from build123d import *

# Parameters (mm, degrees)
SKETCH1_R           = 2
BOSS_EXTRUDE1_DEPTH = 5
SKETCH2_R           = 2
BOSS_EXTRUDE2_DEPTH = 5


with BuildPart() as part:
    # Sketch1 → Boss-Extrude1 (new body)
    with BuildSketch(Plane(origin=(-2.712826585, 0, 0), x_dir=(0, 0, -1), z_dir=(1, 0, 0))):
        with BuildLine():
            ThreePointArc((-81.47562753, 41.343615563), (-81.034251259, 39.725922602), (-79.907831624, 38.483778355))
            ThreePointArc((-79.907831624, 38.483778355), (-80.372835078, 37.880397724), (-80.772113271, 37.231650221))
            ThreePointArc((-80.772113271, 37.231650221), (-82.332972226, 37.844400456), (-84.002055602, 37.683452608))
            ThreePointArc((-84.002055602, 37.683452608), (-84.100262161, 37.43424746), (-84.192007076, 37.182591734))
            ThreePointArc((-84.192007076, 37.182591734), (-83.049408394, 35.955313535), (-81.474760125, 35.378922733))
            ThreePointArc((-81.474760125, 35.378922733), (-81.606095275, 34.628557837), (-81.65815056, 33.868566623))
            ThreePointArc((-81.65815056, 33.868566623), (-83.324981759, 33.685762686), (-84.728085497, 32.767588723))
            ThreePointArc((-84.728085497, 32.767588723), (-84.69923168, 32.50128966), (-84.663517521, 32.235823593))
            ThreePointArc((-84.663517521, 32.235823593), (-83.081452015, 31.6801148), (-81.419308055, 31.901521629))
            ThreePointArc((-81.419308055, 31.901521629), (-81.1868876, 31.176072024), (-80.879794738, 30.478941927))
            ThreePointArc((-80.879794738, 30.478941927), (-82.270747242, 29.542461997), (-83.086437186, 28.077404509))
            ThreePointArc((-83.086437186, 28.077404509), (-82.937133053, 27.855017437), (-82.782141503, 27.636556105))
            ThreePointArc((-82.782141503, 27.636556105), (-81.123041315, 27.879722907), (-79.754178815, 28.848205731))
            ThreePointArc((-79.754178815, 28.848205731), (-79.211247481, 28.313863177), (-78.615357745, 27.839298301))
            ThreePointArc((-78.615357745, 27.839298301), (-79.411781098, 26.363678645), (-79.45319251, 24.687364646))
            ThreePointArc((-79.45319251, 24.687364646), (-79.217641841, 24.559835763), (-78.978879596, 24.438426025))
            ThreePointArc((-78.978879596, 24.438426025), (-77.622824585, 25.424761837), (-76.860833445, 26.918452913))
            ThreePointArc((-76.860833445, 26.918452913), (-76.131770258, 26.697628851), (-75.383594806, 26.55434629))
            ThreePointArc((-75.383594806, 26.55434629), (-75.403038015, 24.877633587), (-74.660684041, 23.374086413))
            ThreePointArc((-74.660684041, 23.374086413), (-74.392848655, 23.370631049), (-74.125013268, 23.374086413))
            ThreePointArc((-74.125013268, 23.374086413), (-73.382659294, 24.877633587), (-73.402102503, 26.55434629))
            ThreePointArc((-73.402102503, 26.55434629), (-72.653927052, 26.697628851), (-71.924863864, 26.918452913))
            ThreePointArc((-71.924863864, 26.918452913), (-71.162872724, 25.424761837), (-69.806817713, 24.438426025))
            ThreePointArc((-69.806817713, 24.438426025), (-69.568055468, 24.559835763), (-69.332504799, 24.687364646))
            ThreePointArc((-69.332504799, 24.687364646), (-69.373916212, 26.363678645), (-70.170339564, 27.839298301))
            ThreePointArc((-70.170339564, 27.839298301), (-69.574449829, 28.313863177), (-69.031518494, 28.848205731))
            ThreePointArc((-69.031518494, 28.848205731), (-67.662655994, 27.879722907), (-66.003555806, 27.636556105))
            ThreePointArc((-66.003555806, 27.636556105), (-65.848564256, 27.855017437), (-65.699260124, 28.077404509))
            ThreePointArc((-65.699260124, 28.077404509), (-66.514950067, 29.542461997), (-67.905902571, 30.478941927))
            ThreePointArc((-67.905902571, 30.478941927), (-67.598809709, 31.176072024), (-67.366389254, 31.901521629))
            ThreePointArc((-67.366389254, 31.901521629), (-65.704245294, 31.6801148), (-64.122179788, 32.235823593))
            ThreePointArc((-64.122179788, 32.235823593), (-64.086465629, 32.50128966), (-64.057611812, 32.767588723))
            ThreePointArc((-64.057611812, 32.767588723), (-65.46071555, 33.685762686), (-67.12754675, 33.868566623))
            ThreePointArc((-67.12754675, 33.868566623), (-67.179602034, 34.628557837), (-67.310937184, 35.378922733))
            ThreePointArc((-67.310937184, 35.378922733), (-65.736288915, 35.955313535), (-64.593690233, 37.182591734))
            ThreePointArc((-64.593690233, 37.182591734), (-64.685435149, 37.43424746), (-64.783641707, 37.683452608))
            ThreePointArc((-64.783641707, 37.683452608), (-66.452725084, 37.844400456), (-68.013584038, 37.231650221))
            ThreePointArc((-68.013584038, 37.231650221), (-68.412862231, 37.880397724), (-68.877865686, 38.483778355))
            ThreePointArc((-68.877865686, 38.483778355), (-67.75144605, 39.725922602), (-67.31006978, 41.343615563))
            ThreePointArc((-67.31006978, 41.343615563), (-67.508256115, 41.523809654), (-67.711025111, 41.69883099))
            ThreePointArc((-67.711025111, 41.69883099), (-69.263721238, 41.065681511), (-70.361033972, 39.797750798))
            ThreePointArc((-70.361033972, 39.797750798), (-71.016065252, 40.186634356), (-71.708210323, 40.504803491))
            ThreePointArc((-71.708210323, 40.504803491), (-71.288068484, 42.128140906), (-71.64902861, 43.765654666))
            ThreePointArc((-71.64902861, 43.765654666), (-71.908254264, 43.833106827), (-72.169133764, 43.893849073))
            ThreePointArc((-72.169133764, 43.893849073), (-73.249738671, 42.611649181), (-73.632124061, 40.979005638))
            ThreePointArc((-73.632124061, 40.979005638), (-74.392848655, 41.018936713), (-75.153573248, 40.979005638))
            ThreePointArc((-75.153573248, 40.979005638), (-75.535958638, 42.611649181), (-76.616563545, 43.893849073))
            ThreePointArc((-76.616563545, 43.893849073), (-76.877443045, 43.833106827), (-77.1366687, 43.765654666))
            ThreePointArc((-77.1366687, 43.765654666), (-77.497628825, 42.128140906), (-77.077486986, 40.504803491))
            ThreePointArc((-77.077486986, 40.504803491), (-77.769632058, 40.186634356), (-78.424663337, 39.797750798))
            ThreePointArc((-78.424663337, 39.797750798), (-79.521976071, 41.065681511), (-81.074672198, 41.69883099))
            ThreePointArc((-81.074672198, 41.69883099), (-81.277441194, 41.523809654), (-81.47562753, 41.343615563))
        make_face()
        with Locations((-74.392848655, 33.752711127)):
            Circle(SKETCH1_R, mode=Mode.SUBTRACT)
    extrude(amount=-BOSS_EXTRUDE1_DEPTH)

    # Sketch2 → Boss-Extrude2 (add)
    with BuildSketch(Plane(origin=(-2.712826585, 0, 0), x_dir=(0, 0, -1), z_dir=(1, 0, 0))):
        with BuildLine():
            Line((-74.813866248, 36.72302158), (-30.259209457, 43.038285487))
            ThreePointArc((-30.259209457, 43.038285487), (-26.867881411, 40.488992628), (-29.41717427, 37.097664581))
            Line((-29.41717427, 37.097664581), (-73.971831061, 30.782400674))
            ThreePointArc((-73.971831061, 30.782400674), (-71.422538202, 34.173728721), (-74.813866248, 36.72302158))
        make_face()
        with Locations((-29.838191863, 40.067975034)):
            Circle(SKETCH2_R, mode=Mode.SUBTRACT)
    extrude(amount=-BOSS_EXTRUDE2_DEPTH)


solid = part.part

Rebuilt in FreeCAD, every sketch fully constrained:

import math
import FreeCAD as App
import Part
import Sketcher

V = App.Vector
Q = App.Units.Quantity

doc = App.newDocument("Part")
body = doc.addObject("PartDesign::Body", "Body")

# Sketch on YZ plane
sketch1 = body.newObject("Sketcher::SketchObject", "Sketch")
sketch1.AttachmentSupport = (doc.getObject("YZ_Plane"), [""])
sketch1.MapMode = "FlatFace"
sketch1.AttachmentOffset = App.Placement(V(0, 0, -2.712827), App.Rotation())
sketch1.addGeometry([
    Part.ArcOfCircle(Part.Circle(V(41.456072, 77.878264, 0), V(0, 0, 1), 3.599121), math.radians(91.790521), math.radians(145.673607)),  # 0
    Part.ArcOfCircle(Part.Circle(V(33.752711, 74.392849, 0), V(0, 0, 1), 7.266226), math.radians(49.375123), math.radians(61.394108)),  # 1
    Part.ArcOfCircle(Part.Circle(V(34.279982, 82.831561, 0), V(0, 0, 1), 3.599121), math.radians(-34.904376), math.radians(18.97871)),  # 2
    Part.ArcOfCircle(Part.Circle(V(33.752712, 74.39285, 0), V(0, 0, 1), 10.382079), math.radians(67.752497), math.radians(70.709042)),  # 3
    Part.ArcOfCircle(Part.Circle(V(38.953945, 81.058961, 0), V(0, 0, 1), 3.599121), math.radians(119.482829), math.radians(173.365914)),  # 4
    Part.ArcOfCircle(Part.Circle(V(33.752711, 74.392849, 0), V(0, 0, 1), 7.266226), math.radians(77.067431), math.radians(89.086415)),  # 5
    Part.ArcOfCircle(Part.Circle(V(30.297921, 82.109992, 0), V(0, 0, 1), 3.599121), math.radians(-7.212068), math.radians(46.671017)),  # 6
    Part.ArcOfCircle(Part.Circle(V(33.752711, 74.39285, 0), V(0, 0, 1), 10.382079), math.radians(95.444805), math.radians(98.401349)),  # 7
    Part.ArcOfCircle(Part.Circle(V(35.260278, 82.712531, 0), V(0, 0, 1), 3.599121), math.radians(147.175136), math.radians(201.058222)),  # 8
    Part.ArcOfCircle(Part.Circle(V(33.752711, 74.392849, 0), V(0, 0, 1), 7.266226), math.radians(104.759739), math.radians(116.778723)),  # 9
    Part.ArcOfCircle(Part.Circle(V(27.107311, 79.620519, 0), V(0, 0, 1), 3.599121), math.radians(20.480239), math.radians(74.363325)),  # 10
    Part.ArcOfCircle(Part.Circle(V(33.752712, 74.392847, 0), V(0, 0, 1), 10.382082), math.radians(123.137113), math.radians(126.093657)),  # 11
    Part.ArcOfCircle(Part.Circle(V(31.221246, 82.460163, 0), V(0, 0, 1), 3.599121), math.radians(174.867444), math.radians(228.75053)),  # 12
    Part.ArcOfCircle(Part.Circle(V(33.752711, 74.392849, 0), V(0, 0, 1), 7.266226), math.radians(132.452046), math.radians(144.471031)),  # 13
    Part.ArcOfCircle(Part.Circle(V(25.439082, 75.933449, 0), V(0, 0, 1), 3.599121), math.radians(48.172547), math.radians(102.055633)),  # 14
    Part.ArcOfCircle(Part.Circle(V(33.752712, 74.392848, 0), V(0, 0, 1), 10.382081), math.radians(150.82942), math.radians(153.785964)),  # 15
    Part.ArcOfCircle(Part.Circle(V(27.762142, 80.359671, 0), V(0, 0, 1), 3.599121), math.radians(-157.440248), math.radians(-103.557163)),  # 16
    Part.ArcOfCircle(Part.Circle(V(33.752711, 74.392849, 0), V(0, 0, 1), 7.266226), math.radians(160.144354), math.radians(172.163338)),  # 17
    Part.ArcOfCircle(Part.Circle(V(25.675405, 71.893446, 0), V(0, 0, 1), 3.599121), math.radians(75.864855), math.radians(129.74794)),  # 18
    Part.ArcOfCircle(Part.Circle(V(33.752711, 74.392849, 0), V(0, 0, 1), 10.38208), math.radians(178.521728), math.radians(181.478272)),  # 19
    Part.ArcOfCircle(Part.Circle(V(25.675405, 76.892251, 0), V(0, 0, 1), 3.599121), math.radians(-129.74794), math.radians(-75.864855)),  # 20
    Part.ArcOfCircle(Part.Circle(V(33.752711, 74.392849, 0), V(0, 0, 1), 7.266226), math.radians(-172.163338), math.radians(-160.144354)),  # 21
    Part.ArcOfCircle(Part.Circle(V(27.762142, 68.426027, 0), V(0, 0, 1), 3.599121), math.radians(103.557163), math.radians(157.440248)),  # 22
    Part.ArcOfCircle(Part.Circle(V(33.752712, 74.392849, 0), V(0, 0, 1), 10.382081), math.radians(-153.785964), math.radians(-150.82942)),  # 23
    Part.ArcOfCircle(Part.Circle(V(25.439082, 72.852248, 0), V(0, 0, 1), 3.599121), math.radians(-102.055633), math.radians(-48.172547)),  # 24
    Part.ArcOfCircle(Part.Circle(V(33.752711, 74.392849, 0), V(0, 0, 1), 7.266226), math.radians(-144.471031), math.radians(-132.452046)),  # 25
    Part.ArcOfCircle(Part.Circle(V(31.221246, 66.325534, 0), V(0, 0, 1), 3.599121), math.radians(131.24947), math.radians(185.132556)),  # 26
    Part.ArcOfCircle(Part.Circle(V(33.752712, 74.392849, 0), V(0, 0, 1), 10.382081), math.radians(-126.093657), math.radians(-123.137113)),  # 27
    Part.ArcOfCircle(Part.Circle(V(27.107311, 69.165179, 0), V(0, 0, 1), 3.599121), math.radians(-74.363325), math.radians(-20.480239)),  # 28
    Part.ArcOfCircle(Part.Circle(V(33.752711, 74.392849, 0), V(0, 0, 1), 7.266226), math.radians(-116.778723), math.radians(-104.759739)),  # 29
    Part.ArcOfCircle(Part.Circle(V(35.260278, 66.073166, 0), V(0, 0, 1), 3.599121), math.radians(158.941778), math.radians(212.824864)),  # 30
    Part.ArcOfCircle(Part.Circle(V(33.752711, 74.392848, 0), V(0, 0, 1), 10.382079), math.radians(-98.401349), math.radians(-95.444805)),  # 31
    Part.ArcOfCircle(Part.Circle(V(30.297921, 66.675705, 0), V(0, 0, 1), 3.599121), math.radians(-46.671017), math.radians(7.212068)),  # 32
    Part.ArcOfCircle(Part.Circle(V(33.752711, 74.392849, 0), V(0, 0, 1), 7.266226), math.radians(-89.086415), math.radians(-77.067431)),  # 33
    Part.ArcOfCircle(Part.Circle(V(38.953945, 67.726737, 0), V(0, 0, 1), 3.599121), math.radians(-173.365914), math.radians(-119.482829)),  # 34
    Part.ArcOfCircle(Part.Circle(V(33.752711, 74.39285, 0), V(0, 0, 1), 10.382082), math.radians(-70.709041), math.radians(-67.752497)),  # 35
    Part.ArcOfCircle(Part.Circle(V(34.279982, 65.954136, 0), V(0, 0, 1), 3.599121), math.radians(-18.97871), math.radians(34.904376)),  # 36
    Part.ArcOfCircle(Part.Circle(V(33.752711, 74.392849, 0), V(0, 0, 1), 7.266226), math.radians(-61.394108), math.radians(-49.375123)),  # 37
    Part.ArcOfCircle(Part.Circle(V(41.456072, 70.907434, 0), V(0, 0, 1), 3.599121), math.radians(-145.673607), math.radians(-91.790521)),  # 38
    Part.ArcOfCircle(Part.Circle(V(33.752712, 74.392848, 0), V(0, 0, 1), 10.382079), math.radians(-43.016734), math.radians(-40.060189)),  # 39
    Part.ArcOfCircle(Part.Circle(V(38.141251, 67.165775, 0), V(0, 0, 1), 3.599121), math.radians(8.713598), math.radians(62.596684)),  # 40
    Part.ArcOfCircle(Part.Circle(V(33.752711, 74.392849, 0), V(0, 0, 1), 7.266226), math.radians(-33.7018), math.radians(-21.682815)),  # 41
    Part.ArcOfCircle(Part.Circle(V(42.193451, 74.886597, 0), V(0, 0, 1), 3.599121), math.radians(-117.981299), math.radians(-64.098213)),  # 42
    Part.ArcOfCircle(Part.Circle(V(33.752711, 74.392849, 0), V(0, 0, 1), 10.38208), math.radians(-15.324426), math.radians(-12.367882)),  # 43
    Part.ArcOfCircle(Part.Circle(V(40.997159, 70.033049, 0), V(0, 0, 1), 3.599121), math.radians(36.405906), math.radians(90.288991)),  # 44
    Part.ArcOfCircle(Part.Circle(V(33.752711, 74.392849, 0), V(0, 0, 1), 7.266226), math.radians(-6.009492), math.radians(6.009492)),  # 45
    Part.ArcOfCircle(Part.Circle(V(40.997159, 78.752649, 0), V(0, 0, 1), 3.599121), math.radians(-90.288991), math.radians(-36.405906)),  # 46
    Part.ArcOfCircle(Part.Circle(V(33.752711, 74.392849, 0), V(0, 0, 1), 10.38208), math.radians(12.367882), math.radians(15.324426)),  # 47
    Part.ArcOfCircle(Part.Circle(V(42.193451, 73.8991, 0), V(0, 0, 1), 3.599121), math.radians(64.098213), math.radians(117.981299)),  # 48
    Part.ArcOfCircle(Part.Circle(V(33.752711, 74.392849, 0), V(0, 0, 1), 7.266225), math.radians(21.682815), math.radians(33.7018)),  # 49
    Part.ArcOfCircle(Part.Circle(V(38.141251, 81.619923, 0), V(0, 0, 1), 3.599121), math.radians(-62.596684), math.radians(-8.713598)),  # 50
    Part.ArcOfCircle(Part.Circle(V(33.752711, 74.392849, 0), V(0, 0, 1), 10.38208), math.radians(40.060189), math.radians(43.016734)),  # 51
    Part.Circle(V(33.752711, 74.392849, 0), V(0, 0, 1), 2),  # 52
], False)
sketch1.addConstraint([
    Sketcher.Constraint("Coincident", 0, 2, 1, 1),
    Sketcher.Constraint("Coincident", 1, 2, 2, 1),
    Sketcher.Constraint("Coincident", 2, 2, 3, 1),
    Sketcher.Constraint("Coincident", 3, 2, 4, 1),
    Sketcher.Constraint("Coincident", 4, 2, 5, 1),
    Sketcher.Constraint("Coincident", 5, 2, 6, 1),
    Sketcher.Constraint("Coincident", 6, 2, 7, 1),
    Sketcher.Constraint("Coincident", 7, 2, 8, 1),
    Sketcher.Constraint("Coincident", 8, 2, 9, 1),
    Sketcher.Constraint("Coincident", 9, 2, 10, 1),
    Sketcher.Constraint("Coincident", 10, 2, 11, 1),
    Sketcher.Constraint("Coincident", 11, 2, 12, 1),
    Sketcher.Constraint("Coincident", 12, 2, 13, 1),
    Sketcher.Constraint("Coincident", 13, 2, 14, 1),
    Sketcher.Constraint("Coincident", 14, 2, 15, 1),
    Sketcher.Constraint("Coincident", 15, 2, 16, 1),
    Sketcher.Constraint("Coincident", 16, 2, 17, 1),
    Sketcher.Constraint("Coincident", 17, 2, 18, 1),
    Sketcher.Constraint("Coincident", 18, 2, 19, 1),
    Sketcher.Constraint("Coincident", 19, 2, 20, 1),
    Sketcher.Constraint("Coincident", 20, 2, 21, 1),
    Sketcher.Constraint("Coincident", 21, 2, 22, 1),
    Sketcher.Constraint("Coincident", 22, 2, 23, 1),
    Sketcher.Constraint("Coincident", 23, 2, 24, 1),
    Sketcher.Constraint("Coincident", 24, 2, 25, 1),
    Sketcher.Constraint("Coincident", 25, 2, 26, 1),
    Sketcher.Constraint("Coincident", 26, 2, 27, 1),
    Sketcher.Constraint("Coincident", 27, 2, 28, 1),
    Sketcher.Constraint("Coincident", 28, 2, 29, 1),
    Sketcher.Constraint("Coincident", 29, 2, 30, 1),
    Sketcher.Constraint("Coincident", 30, 2, 31, 1),
    Sketcher.Constraint("Coincident", 31, 2, 32, 1),
    Sketcher.Constraint("Coincident", 32, 2, 33, 1),
    Sketcher.Constraint("Coincident", 33, 2, 34, 1),
    Sketcher.Constraint("Coincident", 34, 2, 35, 1),
    Sketcher.Constraint("Coincident", 35, 2, 36, 1),
    Sketcher.Constraint("Coincident", 36, 2, 37, 1),
    Sketcher.Constraint("Coincident", 37, 2, 38, 1),
    Sketcher.Constraint("Coincident", 38, 2, 39, 1),
    Sketcher.Constraint("Coincident", 39, 2, 40, 1),
    Sketcher.Constraint("Coincident", 40, 2, 41, 1),
    Sketcher.Constraint("Coincident", 41, 2, 42, 1),
    Sketcher.Constraint("Coincident", 42, 2, 43, 1),
    Sketcher.Constraint("Coincident", 43, 2, 44, 1),
    Sketcher.Constraint("Coincident", 44, 2, 45, 1),
    Sketcher.Constraint("Coincident", 45, 2, 46, 1),
    Sketcher.Constraint("Coincident", 46, 2, 47, 1),
    Sketcher.Constraint("Coincident", 47, 2, 48, 1),
    Sketcher.Constraint("Coincident", 48, 2, 49, 1),
    Sketcher.Constraint("Coincident", 49, 2, 50, 1),
    Sketcher.Constraint("Coincident", 50, 2, 51, 1),
    Sketcher.Constraint("Coincident", 51, 2, 0, 1),
    Sketcher.Constraint("Coincident", 3, 3, 1, 3),
    Sketcher.Constraint("Coincident", 5, 3, 1, 3),
    Sketcher.Constraint("Coincident", 7, 3, 1, 3),
    Sketcher.Constraint("Coincident", 9, 3, 1, 3),
    Sketcher.Constraint("Coincident", 11, 3, 1, 3),
    Sketcher.Constraint("Coincident", 13, 3, 1, 3),
    Sketcher.Constraint("Coincident", 15, 3, 1, 3),
    Sketcher.Constraint("Coincident", 17, 3, 1, 3),
    Sketcher.Constraint("Coincident", 19, 3, 1, 3),
    Sketcher.Constraint("Coincident", 21, 3, 1, 3),
    Sketcher.Constraint("Coincident", 23, 3, 1, 3),
    Sketcher.Constraint("Coincident", 25, 3, 1, 3),
    Sketcher.Constraint("Coincident", 27, 3, 1, 3),
    Sketcher.Constraint("Coincident", 29, 3, 1, 3),
    Sketcher.Constraint("Coincident", 31, 3, 1, 3),
    Sketcher.Constraint("Coincident", 33, 3, 1, 3),
    Sketcher.Constraint("Coincident", 35, 3, 1, 3),
    Sketcher.Constraint("Coincident", 37, 3, 1, 3),
    Sketcher.Constraint("Coincident", 39, 3, 1, 3),
    Sketcher.Constraint("Coincident", 41, 3, 1, 3),
    Sketcher.Constraint("Coincident", 43, 3, 1, 3),
    Sketcher.Constraint("Coincident", 45, 3, 1, 3),
    Sketcher.Constraint("Coincident", 47, 3, 1, 3),
    Sketcher.Constraint("Coincident", 49, 3, 1, 3),
    Sketcher.Constraint("Coincident", 51, 3, 1, 3),
    Sketcher.Constraint("Coincident", 52, 3, 1, 3),
    Sketcher.Constraint("Equal", 0, 2),
    Sketcher.Constraint("Equal", 2, 4),
    Sketcher.Constraint("Equal", 1, 5),
    Sketcher.Constraint("Equal", 4, 6),
    Sketcher.Constraint("Equal", 3, 7),
    Sketcher.Constraint("Equal", 6, 8),
    Sketcher.Constraint("Equal", 5, 9),
    Sketcher.Constraint("Equal", 8, 10),
    Sketcher.Constraint("Equal", 10, 12),
    Sketcher.Constraint("Equal", 9, 13),
    Sketcher.Constraint("Equal", 12, 14),
    Sketcher.Constraint("Equal", 11, 15),
    Sketcher.Constraint("Equal", 14, 16),
    Sketcher.Constraint("Equal", 13, 17),
    Sketcher.Constraint("Equal", 16, 18),
    Sketcher.Constraint("Equal", 15, 19),
    Sketcher.Constraint("Equal", 18, 20),
    Sketcher.Constraint("Equal", 17, 21),
    Sketcher.Constraint("Equal", 20, 22),
    Sketcher.Constraint("Equal", 19, 23),
    Sketcher.Constraint("Equal", 22, 24),
    Sketcher.Constraint("Equal", 21, 25),
    Sketcher.Constraint("Equal", 24, 26),
    Sketcher.Constraint("Equal", 23, 27),
    Sketcher.Constraint("Equal", 26, 28),
    Sketcher.Constraint("Equal", 25, 29),
    Sketcher.Constraint("Equal", 28, 30),
    Sketcher.Constraint("Equal", 27, 31),
    Sketcher.Constraint("Equal", 30, 32),
    Sketcher.Constraint("Equal", 29, 33),
    Sketcher.Constraint("Equal", 32, 34),
    Sketcher.Constraint("Equal", 27, 35),
    Sketcher.Constraint("Equal", 34, 36),
    Sketcher.Constraint("Equal", 33, 37),
    Sketcher.Constraint("Equal", 36, 38),
    Sketcher.Constraint("Equal", 31, 39),
    Sketcher.Constraint("Equal", 38, 40),
    Sketcher.Constraint("Equal", 37, 41),
    Sketcher.Constraint("Equal", 40, 42),
    Sketcher.Constraint("Equal", 39, 43),
    Sketcher.Constraint("Equal", 42, 44),
    Sketcher.Constraint("Equal", 41, 45),
    Sketcher.Constraint("Equal", 44, 46),
    Sketcher.Constraint("Equal", 43, 47),
    Sketcher.Constraint("Equal", 46, 48),
    Sketcher.Constraint("Equal", 45, 49),
    Sketcher.Constraint("Equal", 48, 50),
    Sketcher.Constraint("Equal", 47, 51),
    Sketcher.Constraint("Vertical", 18, 3, 20, 3),
    Sketcher.Constraint("Vertical", 16, 3, 22, 3),
    Sketcher.Constraint("Vertical", 14, 3, 24, 3),
    Sketcher.Constraint("Vertical", 12, 3, 26, 3),
    Sketcher.Constraint("Vertical", 10, 3, 28, 3),
    Sketcher.Constraint("Vertical", 8, 3, 30, 3),
    Sketcher.Constraint("Vertical", 6, 3, 32, 3),
    Sketcher.Constraint("Vertical", 4, 3, 34, 3),
    Sketcher.Constraint("Vertical", 2, 3, 36, 3),
    Sketcher.Constraint("Vertical", 0, 3, 38, 3),
    Sketcher.Constraint("Vertical", 44, 3, 46, 3),
    Sketcher.Constraint("Vertical", 42, 3, 48, 3),
    Sketcher.Constraint("Vertical", 40, 3, 50, 3),
    Sketcher.Constraint("Vertical", 18, 2, 19, 2),
    Sketcher.Constraint("Vertical", 16, 2, 21, 2),
    Sketcher.Constraint("Vertical", 14, 2, 23, 2),
    Sketcher.Constraint("Vertical", 12, 2, 25, 2),
    Sketcher.Constraint("Vertical", 10, 2, 27, 2),
    Sketcher.Constraint("Vertical", 8, 2, 29, 2),
    Sketcher.Constraint("Vertical", 7, 2, 30, 2),
    Sketcher.Constraint("Vertical", 6, 2, 31, 2),
    Sketcher.Constraint("Vertical", 4, 2, 33, 2),
    Sketcher.Constraint("Vertical", 2, 2, 35, 2),
    Sketcher.Constraint("Vertical", 0, 2, 37, 2),
    Sketcher.Constraint("Vertical", 44, 2, 45, 2),
    Sketcher.Constraint("Vertical", 42, 2, 47, 2),
    Sketcher.Constraint("Vertical", 40, 2, 49, 2),
    Sketcher.Constraint("Diameter", 52, Q("4 mm")),
    Sketcher.Constraint("Radius", 0, Q("3.599121 mm")),
    Sketcher.Constraint("Radius", 3, Q("10.382079 mm")),
    Sketcher.Constraint("Radius", 1, Q("7.266226 mm")),
    Sketcher.Constraint("DistanceY", -1, 1, 48, 3, Q("73.8991 mm")),
    Sketcher.Constraint("DistanceX", -1, 1, 13, 2, Q("27.839298 mm")),
    Sketcher.Constraint("DistanceX", -1, 1, 0, 3, Q("41.456072 mm")),
    Sketcher.Constraint("DistanceX", -1, 1, 1, 3, Q("33.752711 mm")),
    Sketcher.Constraint("DistanceY", -1, 1, 1, 3, Q("74.392849 mm")),
    Sketcher.Constraint("DistanceX", -1, 1, 2, 3, Q("34.279982 mm")),
    Sketcher.Constraint("DistanceY", -1, 1, 2, 3, Q("82.831561 mm")),
    Sketcher.Constraint("DistanceY", -1, 1, 4, 3, Q("81.058961 mm")),
    Sketcher.Constraint("DistanceX", -1, 1, 6, 3, Q("30.297921 mm")),
    Sketcher.Constraint("DistanceX", -1, 1, 8, 3, Q("35.260278 mm")),
    Sketcher.Constraint("DistanceY", -1, 1, 8, 3, Q("82.712531 mm")),
    Sketcher.Constraint("DistanceX", -1, 1, 10, 3, Q("27.107311 mm")),
    Sketcher.Constraint("DistanceY", -1, 1, 10, 3, Q("79.620519 mm")),
    Sketcher.Constraint("DistanceX", -1, 1, 14, 3, Q("25.439082 mm")),
    Sketcher.Constraint("DistanceY", -1, 1, 16, 3, Q("80.359671 mm")),
    Sketcher.Constraint("DistanceY", -1, 1, 20, 3, Q("76.892251 mm")),
    Sketcher.Constraint("DistanceX", -1, 1, 40, 3, Q("38.141251 mm")),
    Sketcher.Constraint("DistanceX", -1, 1, 42, 3, Q("42.193451 mm")),
    Sketcher.Constraint("DistanceX", -1, 1, 44, 3, Q("40.997159 mm")),
    Sketcher.Constraint("DistanceY", -1, 1, 44, 3, Q("70.033049 mm")),
    Sketcher.Constraint("DistanceX", -1, 1, 0, 2, Q("38.483778 mm")),
    Sketcher.Constraint("DistanceX", -1, 1, 3, 2, Q("37.182592 mm")),
    Sketcher.Constraint("DistanceX", -1, 1, 6, 2, Q("32.767589 mm")),
    Sketcher.Constraint("DistanceY", -1, 1, 11, 2, Q("82.782142 mm")),
    Sketcher.Constraint("DistanceY", -1, 1, 12, 2, Q("79.754179 mm")),
    Sketcher.Constraint("DistanceY", -1, 1, 15, 2, Q("78.97888 mm")),
    Sketcher.Constraint("DistanceX", -1, 1, 39, 2, Q("41.698831 mm")),
    Sketcher.Constraint("DistanceX", -1, 1, 18, 3, Q("25.675405 mm")),
])
pad1 = body.newObject("PartDesign::Pad", "Pad")
pad1.Profile = sketch1
pad1.Length = 5
pad1.Reversed = True

# Sketch on YZ plane
sketch2 = body.newObject("Sketcher::SketchObject", "Sketch001")
sketch2.AttachmentSupport = (doc.getObject("YZ_Plane"), [""])
sketch2.MapMode = "FlatFace"
sketch2.AttachmentOffset = App.Placement(V(0, 0, -2.712827), App.Rotation())
sketch2.addGeometry([
    Part.LineSegment(V(43.038285, 30.259209, 0), V(36.723022, 74.813866, 0)),  # 0
    Part.ArcOfCircle(Part.Circle(V(33.752711, 74.392849, 0), V(0, 0, 1), 3), math.radians(-171.932525), math.radians(8.067475)),  # 1
    Part.LineSegment(V(30.782401, 73.971831, 0), V(37.097665, 29.417174, 0)),  # 2
    Part.ArcOfCircle(Part.Circle(V(40.067975, 29.838192, 0), V(0, 0, 1), 3), math.radians(-171.932525), math.radians(8.067475)),  # 3
    Part.Circle(V(40.067975, 29.838192, 0), V(0, 0, 1), 2),  # 4
], False)
sketch2.addConstraint([
    Sketcher.Constraint("Tangent", 0, 2, 1, 2),
    Sketcher.Constraint("Tangent", 1, 1, 2, 1),
    Sketcher.Constraint("Tangent", 2, 2, 3, 1),
    Sketcher.Constraint("Tangent", 3, 2, 0, 1),
    Sketcher.Constraint("Coincident", 4, 3, 3, 3),
    Sketcher.Constraint("Equal", 1, 3),
    Sketcher.Constraint("Diameter", 4, Q("4 mm")),
    Sketcher.Constraint("Radius", 1, Q("3 mm")),
    Sketcher.Constraint("Distance", 0, Q("45 mm")),
    Sketcher.Constraint("DistanceX", -1, 1, 1, 1, Q("30.782401 mm")),
    Sketcher.Constraint("DistanceX", -1, 1, 1, 3, Q("33.752711 mm")),
    Sketcher.Constraint("DistanceY", -1, 1, 1, 3, Q("74.392849 mm")),
])
pad2 = body.newObject("PartDesign::Pad", "Pad001")
pad2.Profile = sketch2
pad2.Length = 5
pad2.Reversed = True

doc.recompute()
